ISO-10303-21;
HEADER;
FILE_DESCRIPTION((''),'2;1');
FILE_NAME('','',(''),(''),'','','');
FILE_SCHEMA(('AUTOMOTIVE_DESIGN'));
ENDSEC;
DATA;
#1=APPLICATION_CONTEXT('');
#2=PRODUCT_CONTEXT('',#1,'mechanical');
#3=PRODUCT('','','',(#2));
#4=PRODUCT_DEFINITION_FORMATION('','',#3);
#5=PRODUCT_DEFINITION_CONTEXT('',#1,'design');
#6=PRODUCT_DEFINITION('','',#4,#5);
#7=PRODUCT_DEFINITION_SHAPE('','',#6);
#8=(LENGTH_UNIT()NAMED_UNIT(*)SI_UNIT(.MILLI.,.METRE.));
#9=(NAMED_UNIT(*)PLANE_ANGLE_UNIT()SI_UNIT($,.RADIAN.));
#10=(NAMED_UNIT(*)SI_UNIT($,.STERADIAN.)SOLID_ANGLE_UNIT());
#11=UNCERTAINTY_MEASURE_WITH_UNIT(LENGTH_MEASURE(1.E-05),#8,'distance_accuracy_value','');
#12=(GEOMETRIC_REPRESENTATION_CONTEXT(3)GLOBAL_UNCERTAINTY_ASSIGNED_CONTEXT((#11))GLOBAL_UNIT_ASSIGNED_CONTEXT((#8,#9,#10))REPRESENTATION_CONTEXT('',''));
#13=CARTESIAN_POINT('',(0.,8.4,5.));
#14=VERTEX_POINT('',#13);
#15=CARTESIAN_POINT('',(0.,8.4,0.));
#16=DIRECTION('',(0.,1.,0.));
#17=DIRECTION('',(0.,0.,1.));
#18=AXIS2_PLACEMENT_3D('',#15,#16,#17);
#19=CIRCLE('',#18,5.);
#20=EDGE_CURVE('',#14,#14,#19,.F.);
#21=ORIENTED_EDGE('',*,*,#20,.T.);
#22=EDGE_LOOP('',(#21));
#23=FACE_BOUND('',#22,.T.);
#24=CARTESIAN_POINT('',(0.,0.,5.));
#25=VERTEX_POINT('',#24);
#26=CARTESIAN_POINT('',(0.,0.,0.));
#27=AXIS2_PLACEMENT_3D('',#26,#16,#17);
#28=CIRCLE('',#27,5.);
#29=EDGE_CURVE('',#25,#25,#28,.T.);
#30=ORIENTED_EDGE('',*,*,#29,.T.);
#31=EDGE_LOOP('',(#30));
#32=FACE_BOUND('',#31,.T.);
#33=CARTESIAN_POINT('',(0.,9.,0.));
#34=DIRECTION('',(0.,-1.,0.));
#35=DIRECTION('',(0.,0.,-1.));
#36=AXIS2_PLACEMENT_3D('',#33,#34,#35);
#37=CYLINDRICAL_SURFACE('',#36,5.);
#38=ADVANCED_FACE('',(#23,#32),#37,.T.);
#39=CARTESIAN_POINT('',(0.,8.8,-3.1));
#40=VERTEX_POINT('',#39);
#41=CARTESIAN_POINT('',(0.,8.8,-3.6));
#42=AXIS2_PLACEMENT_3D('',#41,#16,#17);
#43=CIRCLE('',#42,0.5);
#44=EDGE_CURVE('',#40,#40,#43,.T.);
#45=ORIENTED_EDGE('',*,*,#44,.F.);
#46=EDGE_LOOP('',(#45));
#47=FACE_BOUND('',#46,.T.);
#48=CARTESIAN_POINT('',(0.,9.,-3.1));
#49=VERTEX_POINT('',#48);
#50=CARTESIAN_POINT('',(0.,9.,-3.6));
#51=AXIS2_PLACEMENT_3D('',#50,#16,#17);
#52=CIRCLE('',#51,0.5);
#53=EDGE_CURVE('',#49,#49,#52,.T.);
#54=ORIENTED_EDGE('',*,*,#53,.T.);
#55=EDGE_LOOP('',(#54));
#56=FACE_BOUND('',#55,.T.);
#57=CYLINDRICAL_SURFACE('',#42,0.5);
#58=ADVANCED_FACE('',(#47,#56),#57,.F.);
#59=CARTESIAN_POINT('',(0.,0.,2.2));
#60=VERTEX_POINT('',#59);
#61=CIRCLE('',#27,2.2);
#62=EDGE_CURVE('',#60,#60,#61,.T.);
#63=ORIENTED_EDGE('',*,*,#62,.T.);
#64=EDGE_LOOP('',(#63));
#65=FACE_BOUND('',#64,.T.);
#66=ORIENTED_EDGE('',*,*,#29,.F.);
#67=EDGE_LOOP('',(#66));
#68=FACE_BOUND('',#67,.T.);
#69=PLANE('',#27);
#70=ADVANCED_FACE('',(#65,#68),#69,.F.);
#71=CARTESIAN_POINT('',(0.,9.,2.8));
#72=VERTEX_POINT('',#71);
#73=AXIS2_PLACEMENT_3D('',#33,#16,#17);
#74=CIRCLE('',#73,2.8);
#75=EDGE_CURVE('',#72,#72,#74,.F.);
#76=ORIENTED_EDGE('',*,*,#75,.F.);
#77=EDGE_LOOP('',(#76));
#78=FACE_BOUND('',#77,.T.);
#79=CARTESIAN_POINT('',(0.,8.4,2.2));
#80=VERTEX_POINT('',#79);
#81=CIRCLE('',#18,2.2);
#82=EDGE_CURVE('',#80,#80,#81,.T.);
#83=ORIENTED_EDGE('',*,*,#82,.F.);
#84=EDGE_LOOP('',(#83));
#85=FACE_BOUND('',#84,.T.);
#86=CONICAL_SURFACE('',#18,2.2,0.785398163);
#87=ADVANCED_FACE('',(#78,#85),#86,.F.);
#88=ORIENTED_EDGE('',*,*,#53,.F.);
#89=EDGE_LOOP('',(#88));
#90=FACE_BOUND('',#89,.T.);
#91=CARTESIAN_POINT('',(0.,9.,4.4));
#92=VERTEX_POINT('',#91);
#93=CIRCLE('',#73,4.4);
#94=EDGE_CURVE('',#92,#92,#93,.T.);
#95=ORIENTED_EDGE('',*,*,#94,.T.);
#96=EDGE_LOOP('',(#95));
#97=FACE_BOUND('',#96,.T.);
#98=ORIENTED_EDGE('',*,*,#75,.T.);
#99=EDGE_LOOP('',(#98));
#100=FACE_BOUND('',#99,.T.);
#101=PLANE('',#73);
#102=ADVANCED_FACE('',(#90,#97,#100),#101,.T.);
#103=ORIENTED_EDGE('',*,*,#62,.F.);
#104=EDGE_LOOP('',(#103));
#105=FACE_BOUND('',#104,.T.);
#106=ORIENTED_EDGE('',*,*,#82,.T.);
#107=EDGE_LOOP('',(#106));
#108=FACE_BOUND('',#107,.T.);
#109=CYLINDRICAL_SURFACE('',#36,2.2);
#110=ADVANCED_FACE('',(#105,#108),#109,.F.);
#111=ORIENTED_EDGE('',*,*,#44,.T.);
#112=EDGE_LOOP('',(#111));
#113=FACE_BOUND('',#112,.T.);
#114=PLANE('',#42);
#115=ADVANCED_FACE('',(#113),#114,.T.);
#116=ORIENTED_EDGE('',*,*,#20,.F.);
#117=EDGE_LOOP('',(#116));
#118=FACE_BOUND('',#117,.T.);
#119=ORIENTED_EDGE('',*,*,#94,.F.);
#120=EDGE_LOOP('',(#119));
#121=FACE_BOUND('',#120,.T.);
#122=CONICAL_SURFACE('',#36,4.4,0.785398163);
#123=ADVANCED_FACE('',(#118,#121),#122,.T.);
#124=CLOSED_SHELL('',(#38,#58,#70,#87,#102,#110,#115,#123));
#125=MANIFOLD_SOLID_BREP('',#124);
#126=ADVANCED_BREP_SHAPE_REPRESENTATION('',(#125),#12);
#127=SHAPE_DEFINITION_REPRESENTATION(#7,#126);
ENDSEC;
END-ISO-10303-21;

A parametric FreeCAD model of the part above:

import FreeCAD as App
import Part
import Sketcher
from FreeCAD import Vector


def edges_at(feature, points):
    """Names of the edges that pass closest to the given points."""
    edges = feature.Shape.Edges
    near = lambda p: min(range(len(edges)), key=lambda i: edges[i].distToShape(Part.Vertex(*p))[0])
    return sorted({f"Edge{near(p) + 1}" for p in points})

doc = App.newDocument("Part")
body = doc.addObject("PartDesign::Body", "Body")

# Sketch on XZ plane
sketch1 = body.newObject("Sketcher::SketchObject", "Sketch")
sketch1.AttachmentSupport = (doc.getObject("XZ_Plane"), [""])
sketch1.MapMode = "FlatFace"
sketch1.addGeometry(Part.Circle(Vector(0, 0, 0), Vector(0, 0, 1), 5), False)
sketch1.addConstraint(Sketcher.Constraint("Coincident", 0, 3, -1, 1))
sketch1.addConstraint(Sketcher.Constraint("Diameter", 0, 10.0))
pad1 = body.newObject("PartDesign::Pad", "Pad")
pad1.Profile = sketch1
pad1.Length = 9
pad1.Reversed = True

# Sketch on XZ plane
sketch2 = body.newObject("Sketcher::SketchObject", "Sketch001")
sketch2.AttachmentSupport = (doc.getObject("XZ_Plane"), [""])
sketch2.MapMode = "FlatFace"
sketch2.addGeometry(Part.Circle(Vector(0, 0, 0), Vector(0, 0, 1), 2.2), False)
sketch2.addConstraint(Sketcher.Constraint("Coincident", 0, 3, -1, 1))
sketch2.addConstraint(Sketcher.Constraint("Diameter", 0, 4.4))
pocket1 = body.newObject("PartDesign::Pocket", "Pocket")
pocket1.Profile = sketch2
pocket1.Type = "ThroughAll"

# Sketch on XZ plane
sketch3 = body.newObject("Sketcher::SketchObject", "Sketch002")
sketch3.AttachmentSupport = (doc.getObject("XZ_Plane"), [""])
sketch3.MapMode = "FlatFace"
sketch3.AttachmentOffset = App.Placement(Vector(0, 0, -9), App.Rotation())
sketch3.addGeometry(Part.Circle(Vector(0, -3.6, 0), Vector(0, 0, 1), 0.5), False)
sketch3.addConstraint(Sketcher.Constraint("PointOnObject", 0, 3, -2))
sketch3.addConstraint(Sketcher.Constraint("Diameter", 0, 1.0))
sketch3.addConstraint(Sketcher.Constraint("DistanceY", 0, 3, -1, 1, 3.6))
pocket2 = body.newObject("PartDesign::Pocket", "Pocket001")
pocket2.Profile = sketch3
pocket2.Length = 0.2
pocket2.Reversed = True
doc.recompute()

chamfer = body.newObject("PartDesign::Chamfer", "Chamfer")
chamfer.Base = (pocket2, edges_at(pocket2, [(-5, 9, 0), (-2.2, 9, 0)]))
chamfer.Size = 0.6

doc.recompute()
